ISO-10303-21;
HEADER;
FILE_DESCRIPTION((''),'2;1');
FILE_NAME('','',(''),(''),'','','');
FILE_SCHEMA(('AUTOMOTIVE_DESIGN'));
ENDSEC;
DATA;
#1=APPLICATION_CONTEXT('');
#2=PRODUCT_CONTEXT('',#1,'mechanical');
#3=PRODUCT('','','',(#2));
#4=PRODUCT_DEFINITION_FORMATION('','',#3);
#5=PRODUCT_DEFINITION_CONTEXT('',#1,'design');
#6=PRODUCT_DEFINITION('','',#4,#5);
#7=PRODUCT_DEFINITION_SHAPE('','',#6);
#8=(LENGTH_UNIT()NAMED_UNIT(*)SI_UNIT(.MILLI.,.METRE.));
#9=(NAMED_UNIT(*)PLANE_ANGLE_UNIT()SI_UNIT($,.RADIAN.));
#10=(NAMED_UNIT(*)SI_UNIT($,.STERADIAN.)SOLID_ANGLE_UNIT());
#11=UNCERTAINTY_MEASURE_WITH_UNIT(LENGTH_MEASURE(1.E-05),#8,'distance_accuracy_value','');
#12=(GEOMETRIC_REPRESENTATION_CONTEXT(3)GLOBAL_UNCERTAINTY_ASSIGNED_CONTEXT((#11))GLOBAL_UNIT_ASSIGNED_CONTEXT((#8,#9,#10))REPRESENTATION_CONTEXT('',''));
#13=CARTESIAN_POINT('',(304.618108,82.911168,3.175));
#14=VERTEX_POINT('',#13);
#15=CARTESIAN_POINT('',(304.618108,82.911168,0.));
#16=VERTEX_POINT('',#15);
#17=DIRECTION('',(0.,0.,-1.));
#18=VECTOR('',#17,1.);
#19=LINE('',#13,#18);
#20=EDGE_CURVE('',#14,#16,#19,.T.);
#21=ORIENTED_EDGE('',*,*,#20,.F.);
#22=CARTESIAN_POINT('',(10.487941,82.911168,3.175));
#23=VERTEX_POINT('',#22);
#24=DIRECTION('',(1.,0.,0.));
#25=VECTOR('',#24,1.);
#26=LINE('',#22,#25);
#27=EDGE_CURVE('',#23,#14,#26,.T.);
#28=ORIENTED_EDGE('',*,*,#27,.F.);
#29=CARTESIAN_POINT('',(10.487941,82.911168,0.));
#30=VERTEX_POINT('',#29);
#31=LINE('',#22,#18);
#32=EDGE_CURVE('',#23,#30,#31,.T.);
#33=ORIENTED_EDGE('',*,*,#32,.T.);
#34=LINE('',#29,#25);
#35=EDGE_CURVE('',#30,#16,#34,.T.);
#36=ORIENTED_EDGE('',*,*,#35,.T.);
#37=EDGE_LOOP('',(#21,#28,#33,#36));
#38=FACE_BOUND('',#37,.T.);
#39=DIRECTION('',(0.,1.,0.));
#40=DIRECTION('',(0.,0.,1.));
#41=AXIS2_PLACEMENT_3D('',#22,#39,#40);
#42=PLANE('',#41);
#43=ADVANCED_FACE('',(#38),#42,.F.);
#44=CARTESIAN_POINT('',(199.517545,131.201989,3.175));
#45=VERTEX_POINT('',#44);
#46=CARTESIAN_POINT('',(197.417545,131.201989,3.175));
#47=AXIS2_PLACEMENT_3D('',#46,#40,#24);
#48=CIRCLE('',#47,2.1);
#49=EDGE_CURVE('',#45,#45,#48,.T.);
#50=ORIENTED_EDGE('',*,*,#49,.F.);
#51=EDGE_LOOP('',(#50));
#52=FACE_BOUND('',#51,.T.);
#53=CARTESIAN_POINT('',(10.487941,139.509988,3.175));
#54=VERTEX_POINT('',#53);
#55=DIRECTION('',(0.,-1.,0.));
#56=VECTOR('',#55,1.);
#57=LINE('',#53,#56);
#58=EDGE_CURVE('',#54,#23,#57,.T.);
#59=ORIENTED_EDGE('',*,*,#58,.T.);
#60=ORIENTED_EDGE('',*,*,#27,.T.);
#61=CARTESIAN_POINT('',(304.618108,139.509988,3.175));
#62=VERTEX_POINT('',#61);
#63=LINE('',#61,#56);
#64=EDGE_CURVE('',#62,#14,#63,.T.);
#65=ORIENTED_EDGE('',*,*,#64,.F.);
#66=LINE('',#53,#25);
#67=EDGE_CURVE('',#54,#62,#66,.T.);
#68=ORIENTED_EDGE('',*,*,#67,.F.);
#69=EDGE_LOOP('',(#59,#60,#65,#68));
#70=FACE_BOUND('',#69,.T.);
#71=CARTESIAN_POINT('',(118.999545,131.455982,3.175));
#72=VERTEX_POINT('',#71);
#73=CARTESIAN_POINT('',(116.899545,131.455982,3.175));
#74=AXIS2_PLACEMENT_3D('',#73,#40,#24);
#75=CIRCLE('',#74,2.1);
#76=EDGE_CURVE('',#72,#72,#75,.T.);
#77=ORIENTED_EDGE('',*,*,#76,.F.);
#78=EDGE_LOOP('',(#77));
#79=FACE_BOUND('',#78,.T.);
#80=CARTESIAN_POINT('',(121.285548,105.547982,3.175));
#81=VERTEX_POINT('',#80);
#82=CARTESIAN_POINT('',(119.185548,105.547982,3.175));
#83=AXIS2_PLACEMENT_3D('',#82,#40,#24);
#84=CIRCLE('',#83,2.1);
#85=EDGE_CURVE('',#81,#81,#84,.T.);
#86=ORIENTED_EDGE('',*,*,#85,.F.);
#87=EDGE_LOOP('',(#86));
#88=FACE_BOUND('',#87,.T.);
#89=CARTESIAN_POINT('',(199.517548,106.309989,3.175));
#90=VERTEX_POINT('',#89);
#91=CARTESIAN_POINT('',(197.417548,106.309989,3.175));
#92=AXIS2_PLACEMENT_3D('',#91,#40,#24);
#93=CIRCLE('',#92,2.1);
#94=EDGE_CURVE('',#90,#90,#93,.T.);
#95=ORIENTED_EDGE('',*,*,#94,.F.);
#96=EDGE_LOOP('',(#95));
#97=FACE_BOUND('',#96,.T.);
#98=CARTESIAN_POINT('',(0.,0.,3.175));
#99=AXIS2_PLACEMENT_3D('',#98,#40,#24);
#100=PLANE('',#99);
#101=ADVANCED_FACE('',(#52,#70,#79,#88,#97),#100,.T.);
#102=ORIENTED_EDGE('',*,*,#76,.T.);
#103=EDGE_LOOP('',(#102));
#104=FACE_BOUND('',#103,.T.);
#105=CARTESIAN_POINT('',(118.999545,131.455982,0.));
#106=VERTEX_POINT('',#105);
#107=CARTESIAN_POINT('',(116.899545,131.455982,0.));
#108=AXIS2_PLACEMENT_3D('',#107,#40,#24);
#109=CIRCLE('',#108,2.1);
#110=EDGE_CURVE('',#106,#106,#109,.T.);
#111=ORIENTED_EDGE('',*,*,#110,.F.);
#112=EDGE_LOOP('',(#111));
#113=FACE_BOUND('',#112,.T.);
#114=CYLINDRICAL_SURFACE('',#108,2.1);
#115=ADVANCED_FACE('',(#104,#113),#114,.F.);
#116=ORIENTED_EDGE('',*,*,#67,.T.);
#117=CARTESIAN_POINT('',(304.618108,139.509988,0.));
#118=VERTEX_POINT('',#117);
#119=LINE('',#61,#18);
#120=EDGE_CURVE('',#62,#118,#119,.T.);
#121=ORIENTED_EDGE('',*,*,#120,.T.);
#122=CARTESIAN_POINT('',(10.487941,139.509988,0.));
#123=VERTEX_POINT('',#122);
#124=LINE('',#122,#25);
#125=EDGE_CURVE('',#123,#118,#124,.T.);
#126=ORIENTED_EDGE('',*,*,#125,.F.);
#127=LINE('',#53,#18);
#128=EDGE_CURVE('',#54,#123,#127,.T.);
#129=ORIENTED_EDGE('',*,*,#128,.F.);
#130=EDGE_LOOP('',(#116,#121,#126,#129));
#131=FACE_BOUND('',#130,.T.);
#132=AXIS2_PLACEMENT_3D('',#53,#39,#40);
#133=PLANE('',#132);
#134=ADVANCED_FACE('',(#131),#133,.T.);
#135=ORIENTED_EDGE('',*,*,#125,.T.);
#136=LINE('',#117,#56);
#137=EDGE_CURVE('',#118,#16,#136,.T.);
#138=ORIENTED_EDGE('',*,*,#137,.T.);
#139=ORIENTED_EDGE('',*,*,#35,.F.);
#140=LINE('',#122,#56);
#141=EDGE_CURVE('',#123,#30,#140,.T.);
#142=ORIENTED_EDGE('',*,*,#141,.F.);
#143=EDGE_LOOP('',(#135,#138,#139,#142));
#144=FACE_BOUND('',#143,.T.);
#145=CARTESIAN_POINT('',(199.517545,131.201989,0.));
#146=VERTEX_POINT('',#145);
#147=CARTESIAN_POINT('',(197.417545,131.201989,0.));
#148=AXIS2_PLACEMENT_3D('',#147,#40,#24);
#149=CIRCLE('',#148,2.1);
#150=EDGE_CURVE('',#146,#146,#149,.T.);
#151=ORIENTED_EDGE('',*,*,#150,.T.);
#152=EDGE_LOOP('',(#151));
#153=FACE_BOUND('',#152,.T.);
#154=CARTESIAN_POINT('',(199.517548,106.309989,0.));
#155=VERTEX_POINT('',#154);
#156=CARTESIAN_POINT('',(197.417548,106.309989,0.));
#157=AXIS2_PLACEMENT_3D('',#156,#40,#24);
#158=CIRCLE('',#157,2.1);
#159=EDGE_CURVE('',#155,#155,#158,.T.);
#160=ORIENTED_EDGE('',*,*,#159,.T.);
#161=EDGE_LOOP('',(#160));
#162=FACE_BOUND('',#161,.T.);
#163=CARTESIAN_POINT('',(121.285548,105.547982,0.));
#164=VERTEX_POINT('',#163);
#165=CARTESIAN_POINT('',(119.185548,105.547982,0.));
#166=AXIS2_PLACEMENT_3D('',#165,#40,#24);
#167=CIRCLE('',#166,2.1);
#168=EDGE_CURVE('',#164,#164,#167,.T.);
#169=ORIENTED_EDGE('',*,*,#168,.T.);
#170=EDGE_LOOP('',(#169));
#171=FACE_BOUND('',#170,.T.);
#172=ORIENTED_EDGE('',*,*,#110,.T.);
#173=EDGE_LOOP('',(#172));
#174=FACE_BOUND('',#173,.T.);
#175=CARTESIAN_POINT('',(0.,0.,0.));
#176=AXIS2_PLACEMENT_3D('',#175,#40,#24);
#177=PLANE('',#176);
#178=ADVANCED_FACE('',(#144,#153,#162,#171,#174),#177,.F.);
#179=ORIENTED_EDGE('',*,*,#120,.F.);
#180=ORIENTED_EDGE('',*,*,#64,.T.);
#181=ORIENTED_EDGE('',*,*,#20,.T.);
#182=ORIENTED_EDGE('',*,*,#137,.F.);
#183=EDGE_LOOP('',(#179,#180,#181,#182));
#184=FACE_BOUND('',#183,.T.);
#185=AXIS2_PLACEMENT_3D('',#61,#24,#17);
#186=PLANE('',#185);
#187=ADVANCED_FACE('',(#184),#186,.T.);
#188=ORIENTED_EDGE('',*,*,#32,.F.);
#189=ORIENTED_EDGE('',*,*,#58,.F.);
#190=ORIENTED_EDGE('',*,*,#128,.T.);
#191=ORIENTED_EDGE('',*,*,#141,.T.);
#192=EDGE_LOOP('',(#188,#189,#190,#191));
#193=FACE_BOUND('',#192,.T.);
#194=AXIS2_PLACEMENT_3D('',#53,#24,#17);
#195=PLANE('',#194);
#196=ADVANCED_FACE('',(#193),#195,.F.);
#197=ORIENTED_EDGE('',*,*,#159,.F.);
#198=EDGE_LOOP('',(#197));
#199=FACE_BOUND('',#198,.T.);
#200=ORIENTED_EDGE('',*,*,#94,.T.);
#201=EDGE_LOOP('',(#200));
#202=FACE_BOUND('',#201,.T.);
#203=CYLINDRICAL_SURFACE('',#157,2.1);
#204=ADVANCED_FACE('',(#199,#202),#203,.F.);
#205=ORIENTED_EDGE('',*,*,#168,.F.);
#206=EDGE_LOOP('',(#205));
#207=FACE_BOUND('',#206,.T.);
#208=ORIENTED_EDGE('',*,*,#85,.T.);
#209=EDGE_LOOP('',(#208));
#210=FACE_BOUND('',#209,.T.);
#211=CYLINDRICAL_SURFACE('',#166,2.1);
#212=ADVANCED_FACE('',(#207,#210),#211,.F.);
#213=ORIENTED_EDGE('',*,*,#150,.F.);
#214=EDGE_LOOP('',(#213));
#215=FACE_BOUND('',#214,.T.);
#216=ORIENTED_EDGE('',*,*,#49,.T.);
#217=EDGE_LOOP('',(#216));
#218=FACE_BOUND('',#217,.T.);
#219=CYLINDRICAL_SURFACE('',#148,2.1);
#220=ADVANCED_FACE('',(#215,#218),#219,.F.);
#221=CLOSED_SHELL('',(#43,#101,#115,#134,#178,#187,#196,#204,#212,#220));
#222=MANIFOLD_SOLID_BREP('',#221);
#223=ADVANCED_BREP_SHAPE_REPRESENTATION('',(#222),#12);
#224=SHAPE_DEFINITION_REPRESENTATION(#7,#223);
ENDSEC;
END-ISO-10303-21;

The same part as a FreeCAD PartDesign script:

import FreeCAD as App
import Part
import Sketcher
Q = App.Units.Quantity


def add_polygon(sketch, points):
    """Adds a closed chain of lines whose ends are joined by coincident constraints."""
    first, n = sketch.GeometryCount, len(points)
    for a, b in zip(points, points[1:] + points[:1]):
        sketch.addGeometry(Part.LineSegment(App.Vector(*a, 0), App.Vector(*b, 0)), False)
    for i in range(n):
        sketch.addConstraint(Sketcher.Constraint("Coincident", first + i, 2, first + (i + 1) % n, 1))

doc = App.newDocument("Part")
body = doc.addObject("PartDesign::Body", "Body")

# Sketch on XY plane
sketch1 = doc.addObject("Sketcher::SketchObject", "Sketch")
body.addObject(sketch1)
sketch1.AttachmentSupport = (doc.XY_Plane, [""])
sketch1.MapMode = "FlatFace"
add_polygon(sketch1, [(10, 140), (10, 83), (305, 83), (305, 140)])  # lines 0-3
sketch1.addConstraint([
    Sketcher.Constraint("Vertical", 0),
    Sketcher.Constraint("Horizontal", 1),
    Sketcher.Constraint("Vertical", 2),
    Sketcher.Constraint("Horizontal", 3),
    Sketcher.Constraint("DistanceY", 0, 2, 0, 1, Q("56.59882 mm")),
    Sketcher.Constraint("DistanceX", 1, 1, 1, 2, Q("294.130166 mm")),
    Sketcher.Constraint("DistanceX", -1, 1, 0, 2, Q("10.487941 mm")),
    Sketcher.Constraint("DistanceY", -1, 1, 0, 2, Q("82.911168 mm")),
])
pad1 = doc.addObject("PartDesign::Pad", "Pad")
body.addObject(pad1)
pad1.Profile = sketch1
pad1.Length = 3.175

# Sketch on XY plane
sketch2 = doc.addObject("Sketcher::SketchObject", "Sketch001")
body.addObject(sketch2)
sketch2.AttachmentSupport = (doc.XY_Plane, [""])
sketch2.MapMode = "FlatFace"
sketch2.AttachmentOffset = App.Placement(App.Vector(0, 0, 3.175), App.Rotation())
sketch2.addGeometry([
    Part.Circle(App.Vector(197.4, 131.2, 0), App.Vector(0, 0, 1), 2.1),
    Part.Circle(App.Vector(116.9, 131.5, 0), App.Vector(0, 0, 1), 2.1),
    Part.Circle(App.Vector(119.2, 105.5, 0), App.Vector(0, 0, 1), 2.1),
    Part.Circle(App.Vector(197.4, 106.3, 0), App.Vector(0, 0, 1), 2.1),
], False)
sketch2.addConstraint([
    Sketcher.Constraint("Equal", 0, 1),
    Sketcher.Constraint("Equal", 1, 2),
    Sketcher.Constraint("Equal", 2, 3),
    Sketcher.Constraint("Diameter", 0, Q("4.2 mm")),
    Sketcher.Constraint("DistanceX", 1, 3, 0, 3, Q("80.518 mm")),
    Sketcher.Constraint("DistanceY", 2, 3, 1, 3, Q("25.908 mm")),
    Sketcher.Constraint("DistanceY", 3, 3, 0, 3, Q("24.892 mm")),
    Sketcher.Constraint("DistanceX", 2, 3, 3, 3, Q("78.232 mm")),
    Sketcher.Constraint("DistanceY", -1, 1, 0, 3, Q("131.201989 mm")),
    Sketcher.Constraint("DistanceY", -1, 1, 1, 3, Q("131.455982 mm")),
    Sketcher.Constraint("DistanceX", -1, 1, 0, 3, Q("197.417545 mm")),
    Sketcher.Constraint("DistanceX", -1, 1, 2, 3, Q("119.185548 mm")),
])
pocket1 = doc.addObject("PartDesign::Pocket", "Pocket")
body.addObject(pocket1)
pocket1.Profile = sketch2
pocket1.Type = "ThroughAll"

doc.recompute()
